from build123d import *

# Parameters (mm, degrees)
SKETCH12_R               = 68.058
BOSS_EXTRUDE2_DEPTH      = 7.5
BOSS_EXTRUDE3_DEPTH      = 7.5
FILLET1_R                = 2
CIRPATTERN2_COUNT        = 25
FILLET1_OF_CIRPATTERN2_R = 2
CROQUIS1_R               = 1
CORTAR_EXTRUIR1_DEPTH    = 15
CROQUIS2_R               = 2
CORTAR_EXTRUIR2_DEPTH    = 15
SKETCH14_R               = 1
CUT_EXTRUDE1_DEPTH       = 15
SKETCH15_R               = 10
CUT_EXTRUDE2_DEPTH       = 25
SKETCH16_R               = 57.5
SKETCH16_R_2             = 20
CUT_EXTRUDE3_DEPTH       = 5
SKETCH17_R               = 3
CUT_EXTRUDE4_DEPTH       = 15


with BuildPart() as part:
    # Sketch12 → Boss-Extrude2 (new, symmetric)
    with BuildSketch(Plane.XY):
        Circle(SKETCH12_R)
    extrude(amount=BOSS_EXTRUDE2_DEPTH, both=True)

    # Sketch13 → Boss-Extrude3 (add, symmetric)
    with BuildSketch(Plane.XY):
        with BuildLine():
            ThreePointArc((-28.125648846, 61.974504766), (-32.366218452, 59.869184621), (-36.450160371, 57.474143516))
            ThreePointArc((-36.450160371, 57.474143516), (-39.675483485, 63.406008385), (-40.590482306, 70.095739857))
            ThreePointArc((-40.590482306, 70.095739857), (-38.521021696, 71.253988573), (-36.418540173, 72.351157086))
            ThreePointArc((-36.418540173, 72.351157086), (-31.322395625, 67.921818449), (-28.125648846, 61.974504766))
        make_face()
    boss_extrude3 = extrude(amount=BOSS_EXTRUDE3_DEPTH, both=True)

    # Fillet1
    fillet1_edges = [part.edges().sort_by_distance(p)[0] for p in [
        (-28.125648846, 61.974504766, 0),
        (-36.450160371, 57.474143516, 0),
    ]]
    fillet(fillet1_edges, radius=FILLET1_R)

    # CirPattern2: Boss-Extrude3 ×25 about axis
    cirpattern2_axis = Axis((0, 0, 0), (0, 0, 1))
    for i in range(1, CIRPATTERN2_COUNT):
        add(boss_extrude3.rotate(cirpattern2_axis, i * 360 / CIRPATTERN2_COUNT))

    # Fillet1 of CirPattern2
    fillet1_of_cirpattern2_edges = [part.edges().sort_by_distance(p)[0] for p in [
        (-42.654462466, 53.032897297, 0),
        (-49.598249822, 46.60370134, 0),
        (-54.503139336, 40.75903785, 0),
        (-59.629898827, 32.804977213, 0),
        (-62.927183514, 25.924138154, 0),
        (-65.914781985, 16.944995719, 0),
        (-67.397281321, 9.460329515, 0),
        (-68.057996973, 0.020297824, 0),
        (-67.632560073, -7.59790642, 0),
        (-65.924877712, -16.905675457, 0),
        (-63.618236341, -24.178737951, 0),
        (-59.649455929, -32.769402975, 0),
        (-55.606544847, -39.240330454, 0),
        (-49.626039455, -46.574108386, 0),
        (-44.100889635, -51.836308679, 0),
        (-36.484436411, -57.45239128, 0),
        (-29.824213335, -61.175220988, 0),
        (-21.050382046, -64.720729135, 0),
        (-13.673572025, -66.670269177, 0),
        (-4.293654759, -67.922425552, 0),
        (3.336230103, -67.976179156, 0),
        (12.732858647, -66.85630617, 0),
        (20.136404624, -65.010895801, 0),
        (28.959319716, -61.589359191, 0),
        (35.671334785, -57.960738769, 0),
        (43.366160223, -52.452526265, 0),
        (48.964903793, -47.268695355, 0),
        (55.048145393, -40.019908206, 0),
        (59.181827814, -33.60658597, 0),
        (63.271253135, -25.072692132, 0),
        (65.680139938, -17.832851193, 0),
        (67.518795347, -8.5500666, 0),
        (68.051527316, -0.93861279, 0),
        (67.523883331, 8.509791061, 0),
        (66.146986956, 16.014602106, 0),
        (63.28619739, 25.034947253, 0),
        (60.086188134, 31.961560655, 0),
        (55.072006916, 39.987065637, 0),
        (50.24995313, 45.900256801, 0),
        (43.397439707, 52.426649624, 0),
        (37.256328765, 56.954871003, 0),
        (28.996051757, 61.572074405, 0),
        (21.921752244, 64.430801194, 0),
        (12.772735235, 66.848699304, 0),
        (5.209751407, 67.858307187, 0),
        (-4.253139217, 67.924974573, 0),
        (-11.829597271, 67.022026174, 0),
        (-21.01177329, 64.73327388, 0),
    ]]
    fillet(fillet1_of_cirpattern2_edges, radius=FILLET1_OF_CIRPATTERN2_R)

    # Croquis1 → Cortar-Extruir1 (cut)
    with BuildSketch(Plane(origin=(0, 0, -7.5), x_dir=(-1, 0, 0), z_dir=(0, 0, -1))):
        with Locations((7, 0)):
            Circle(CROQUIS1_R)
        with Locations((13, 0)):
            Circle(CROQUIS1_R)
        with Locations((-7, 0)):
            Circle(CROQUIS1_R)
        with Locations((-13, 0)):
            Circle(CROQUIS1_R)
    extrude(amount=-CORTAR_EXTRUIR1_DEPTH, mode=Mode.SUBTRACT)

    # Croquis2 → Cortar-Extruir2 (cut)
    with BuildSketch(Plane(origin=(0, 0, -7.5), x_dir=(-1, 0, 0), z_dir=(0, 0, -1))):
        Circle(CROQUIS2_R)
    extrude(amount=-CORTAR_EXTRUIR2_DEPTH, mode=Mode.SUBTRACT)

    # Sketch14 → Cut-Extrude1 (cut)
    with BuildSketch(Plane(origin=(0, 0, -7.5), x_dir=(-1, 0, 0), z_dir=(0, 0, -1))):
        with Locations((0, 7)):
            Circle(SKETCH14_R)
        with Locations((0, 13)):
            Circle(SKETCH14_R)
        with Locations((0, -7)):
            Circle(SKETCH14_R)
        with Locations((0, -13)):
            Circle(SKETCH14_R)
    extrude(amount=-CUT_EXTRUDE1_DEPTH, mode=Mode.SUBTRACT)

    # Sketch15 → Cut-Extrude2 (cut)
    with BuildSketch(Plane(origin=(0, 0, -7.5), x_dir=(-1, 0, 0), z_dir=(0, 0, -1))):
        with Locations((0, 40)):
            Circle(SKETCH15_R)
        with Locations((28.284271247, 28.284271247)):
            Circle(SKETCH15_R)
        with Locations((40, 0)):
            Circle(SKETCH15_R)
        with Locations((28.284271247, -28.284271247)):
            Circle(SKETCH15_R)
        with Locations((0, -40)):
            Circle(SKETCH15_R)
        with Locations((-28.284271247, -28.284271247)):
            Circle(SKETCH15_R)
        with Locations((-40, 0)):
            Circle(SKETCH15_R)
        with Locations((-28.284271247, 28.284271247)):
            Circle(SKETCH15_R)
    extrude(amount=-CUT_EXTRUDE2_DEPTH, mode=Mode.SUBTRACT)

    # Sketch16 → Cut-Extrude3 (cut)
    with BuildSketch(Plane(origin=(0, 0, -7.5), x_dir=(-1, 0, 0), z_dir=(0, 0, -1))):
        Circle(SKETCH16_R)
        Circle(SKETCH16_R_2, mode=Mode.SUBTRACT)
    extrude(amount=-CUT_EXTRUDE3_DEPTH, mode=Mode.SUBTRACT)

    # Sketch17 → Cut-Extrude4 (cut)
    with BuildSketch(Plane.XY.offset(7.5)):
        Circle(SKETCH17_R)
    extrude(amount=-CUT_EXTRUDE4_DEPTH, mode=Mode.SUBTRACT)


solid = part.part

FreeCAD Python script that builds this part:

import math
import FreeCAD as App
import Part
import Sketcher

V = App.Vector
Q = App.Units.Quantity


def edges_at(feature, points):
    """Names of the edges that pass closest to the given points."""
    edges = feature.Shape.Edges
    near = lambda p: min(range(len(edges)), key=lambda i: edges[i].distToShape(Part.Vertex(*p))[0])
    return sorted({f"Edge{near(p) + 1}" for p in points})

doc = App.newDocument("Part")
body = doc.addObject("PartDesign::Body", "Body")

sketch1 = body.newObject("Sketcher::SketchObject", "Sketch")
sketch1.AttachmentSupport = (doc.getObject("XY_Plane"), [""])
sketch1.MapMode = "FlatFace"
sketch1.addGeometry(Part.Circle(V(0, 0, 0), V(0, 0, 1), 68), False)
sketch1.addConstraint(Sketcher.Constraint("Coincident", 0, 3, -1, 1))
sketch1.addConstraint(Sketcher.Constraint("Diameter", 0, Q("136.116 mm")))
pad1 = body.newObject("PartDesign::Pad", "Pad")
pad1.Profile = sketch1
pad1.Length = 15
pad1.Midplane = True

sketch2 = body.newObject("Sketcher::SketchObject", "Sketch001")
sketch2.AttachmentSupport = (doc.getObject("XY_Plane"), [""])
sketch2.MapMode = "FlatFace"
sketch2.addGeometry(Part.ArcOfCircle(Part.Circle(V(0, 0, 0), V(0, 0, 1), 68.1), math.radians(114.41), math.radians(122.38)), False)
sketch2.addGeometry(Part.ArcOfCircle(Part.Circle(V(-46, 56.2, 0), V(0, 0, 1), 18.8), math.radians(18), math.radians(59)), False)
sketch2.addGeometry(Part.ArcOfCircle(Part.Circle(V(0, 0, 0), V(0, 0, 1), 81), math.radians(116.72), math.radians(120.07)), False)
sketch2.addGeometry(Part.ArcOfCircle(Part.Circle(V(-21.9, 69.3, 0), V(0, 0, 1), 18.8), math.radians(177), math.radians(219)), False)
sketch2.addConstraint(Sketcher.Constraint("Coincident", 0, 1, 1, 1))
sketch2.addConstraint(Sketcher.Constraint("Coincident", 1, 2, 2, 1))
sketch2.addConstraint(Sketcher.Constraint("Coincident", 2, 2, 3, 1))
sketch2.addConstraint(Sketcher.Constraint("Coincident", 3, 2, 0, 2))
sketch2.addConstraint(Sketcher.Constraint("Coincident", 0, 3, -1, 1))
sketch2.addConstraint(Sketcher.Constraint("Coincident", 2, 3, -1, 1))
sketch2.addConstraint(Sketcher.Constraint("Equal", 1, 3))
sketch2.addConstraint(Sketcher.Constraint("Radius", 2, Q("80.999999 mm")))
sketch2.addConstraint(Sketcher.Constraint("Radius", 1, Q("18.75 mm")))
sketch2.addConstraint(Sketcher.Constraint("Radius", 0, Q("68.058 mm")))
sketch2.addConstraint(Sketcher.Constraint("DistanceY", 1, 3, 3, 2, Q("1.2581 mm")))
sketch2.addConstraint(Sketcher.Constraint("DistanceX", 1, 3, -1, 1, Q("45.969489 mm")))
sketch2.addConstraint(Sketcher.Constraint("DistanceY", -1, 1, 3, 3, Q("69.250252 mm")))
sketch2.addConstraint(Sketcher.Constraint("DistanceX", 1, 2, -1, 1, Q("36.41854 mm")))
pad2 = body.newObject("PartDesign::Pad", "Pad001")
pad2.Profile = sketch2
pad2.Length = 15
pad2.Midplane = True
doc.recompute()

fillet = body.newObject("PartDesign::Fillet", "Fillet")
fillet.Base = (pad2, edges_at(pad2, [(-28.126, 61.975, 0), (-36.45, 57.474, 0)]))
fillet.Radius = 2
doc.recompute()

polarpattern = body.newObject("PartDesign::PolarPattern", "PolarPattern")
polarpattern.Originals = [pad2]
polarpattern.Axis = (doc.getObject("Z_Axis"), [""])
polarpattern.Angle = 360
polarpattern.Occurrences = 25
body.Tip = polarpattern
doc.recompute()

fillet2 = body.newObject("PartDesign::Fillet", "Fillet001")
fillet2.Base = (polarpattern, edges_at(polarpattern, [
    (-42.654, 53.033, 0),
    (-49.598, 46.604, 0),
    (-54.503, 40.759, 0),
    (-59.63, 32.805, 0),
    (-62.927, 25.924, 0),
    (-65.915, 16.945, 0),
    (-67.397, 9.46, 0),
    (-68.058, 0.02, 0),
    (-67.633, -7.598, 0),
    (-65.925, -16.906, 0),
    (-63.618, -24.179, 0),
    (-59.649, -32.769, 0),
    (-55.607, -39.24, 0),
    (-49.626, -46.574, 0),
    (-44.101, -51.836, 0),
    (-36.484, -57.452, 0),
    (-29.824, -61.175, 0),
    (-21.05, -64.721, 0),
    (-13.674, -66.67, 0),
    (-4.294, -67.922, 0),
    (3.336, -67.976, 0),
    (12.733, -66.856, 0),
    (20.136, -65.011, 0),
    (28.959, -61.589, 0),
    (35.671, -57.961, 0),
    (43.366, -52.453, 0),
    (48.965, -47.269, 0),
    (55.048, -40.02, 0),
    (59.182, -33.607, 0),
    (63.271, -25.073, 0),
    (65.68, -17.833, 0),
    (67.519, -8.55, 0),
    (68.052, -0.939, 0),
    (67.524, 8.51, 0),
    (66.147, 16.015, 0),
    (63.286, 25.035, 0),
    (60.086, 31.962, 0),
    (55.072, 39.987, 0),
    (50.25, 45.9, 0),
    (43.397, 52.427, 0),
    (37.256, 56.955, 0),
    (28.996, 61.572, 0),
    (21.922, 64.431, 0),
    (12.773, 66.849, 0),
    (5.21, 67.858, 0),
    (-4.253, 67.925, 0),
    (-11.83, 67.022, 0),
    (-21.012, 64.733, 0),
]))
fillet2.Radius = 2

sketch3 = body.newObject("Sketcher::SketchObject", "Sketch002")
sketch3.AttachmentSupport = (doc.getObject("XY_Plane"), [""])
sketch3.MapMode = "FlatFace"
sketch3.AttachmentOffset = App.Placement(V(0, 0, -7.5), App.Rotation())
sketch3.addGeometry(Part.Circle(V(-7, 0, 0), V(0, 0, 1), 1), False)
sketch3.addGeometry(Part.Circle(V(-13, 0, 0), V(0, 0, 1), 1), False)
sketch3.addGeometry(Part.Circle(V(7, 0, 0), V(0, 0, 1), 1), False)
sketch3.addGeometry(Part.Circle(V(13, 0, 0), V(0, 0, 1), 1), False)
sketch3.addConstraint(Sketcher.Constraint("Equal", 0, 1))
sketch3.addConstraint(Sketcher.Constraint("Equal", 1, 2))
sketch3.addConstraint(Sketcher.Constraint("Equal", 2, 3))
sketch3.addConstraint(Sketcher.Constraint("Symmetric", 0, 3, 2, 3, -1, 1))
sketch3.addConstraint(Sketcher.Constraint("Symmetric", 1, 3, 3, 3, -1, 1))
sketch3.addConstraint(Sketcher.Constraint("PointOnObject", 0, 3, -1))
sketch3.addConstraint(Sketcher.Constraint("PointOnObject", 1, 3, -1))
sketch3.addConstraint(Sketcher.Constraint("Diameter", 0, Q("2 mm")))
sketch3.addConstraint(Sketcher.Constraint("DistanceX", 0, 3, -1, 1, Q("7 mm")))
sketch3.addConstraint(Sketcher.Constraint("DistanceX", 1, 3, -1, 1, Q("13 mm")))
pocket1 = body.newObject("PartDesign::Pocket", "Pocket")
pocket1.Profile = sketch3
pocket1.Length = 15
pocket1.Reversed = True

sketch4 = body.newObject("Sketcher::SketchObject", "Sketch003")
sketch4.AttachmentSupport = (doc.getObject("XY_Plane"), [""])
sketch4.MapMode = "FlatFace"
sketch4.AttachmentOffset = App.Placement(V(0, 0, -7.5), App.Rotation())
sketch4.addGeometry(Part.Circle(V(0, 0, 0), V(0, 0, 1), 2), False)
sketch4.addConstraint(Sketcher.Constraint("Coincident", 0, 3, -1, 1))
sketch4.addConstraint(Sketcher.Constraint("Diameter", 0, Q("4 mm")))
pocket2 = body.newObject("PartDesign::Pocket", "Pocket001")
pocket2.Profile = sketch4
pocket2.Length = 15
pocket2.Reversed = True

sketch5 = body.newObject("Sketcher::SketchObject", "Sketch004")
sketch5.AttachmentSupport = (doc.getObject("XY_Plane"), [""])
sketch5.MapMode = "FlatFace"
sketch5.AttachmentOffset = App.Placement(V(0, 0, -7.5), App.Rotation())
sketch5.addGeometry(Part.Circle(V(0, 7, 0), V(0, 0, 1), 1), False)
sketch5.addGeometry(Part.Circle(V(0, 13, 0), V(0, 0, 1), 1), False)
sketch5.addGeometry(Part.Circle(V(0, -7, 0), V(0, 0, 1), 1), False)
sketch5.addGeometry(Part.Circle(V(0, -13, 0), V(0, 0, 1), 1), False)
sketch5.addConstraint(Sketcher.Constraint("Equal", 0, 1))
sketch5.addConstraint(Sketcher.Constraint("Equal", 1, 2))
sketch5.addConstraint(Sketcher.Constraint("Equal", 2, 3))
sketch5.addConstraint(Sketcher.Constraint("Symmetric", 0, 3, 2, 3, -1, 1))
sketch5.addConstraint(Sketcher.Constraint("Symmetric", 1, 3, 3, 3, -1, 1))
sketch5.addConstraint(Sketcher.Constraint("PointOnObject", 0, 3, -2))
sketch5.addConstraint(Sketcher.Constraint("PointOnObject", 1, 3, -2))
sketch5.addConstraint(Sketcher.Constraint("Diameter", 0, Q("2 mm")))
sketch5.addConstraint(Sketcher.Constraint("DistanceY", -1, 1, 0, 3, Q("7 mm")))
sketch5.addConstraint(Sketcher.Constraint("DistanceY", -1, 1, 1, 3, Q("13 mm")))
pocket3 = body.newObject("PartDesign::Pocket", "Pocket002")
pocket3.Profile = sketch5
pocket3.Length = 15
pocket3.Reversed = True

sketch6 = body.newObject("Sketcher::SketchObject", "Sketch005")
sketch6.AttachmentSupport = (doc.getObject("XY_Plane"), [""])
sketch6.MapMode = "FlatFace"
sketch6.AttachmentOffset = App.Placement(V(0, 0, -7.5), App.Rotation())
sketch6.addGeometry(Part.Circle(V(0, 40, 0), V(0, 0, 1), 10), False)
sketch6.addGeometry(Part.Circle(V(-28, 28, 0), V(0, 0, 1), 10), False)
sketch6.addGeometry(Part.Circle(V(-40, 0, 0), V(0, 0, 1), 10), False)
sketch6.addGeometry(Part.Circle(V(-28, -28, 0), V(0, 0, 1), 10), False)
sketch6.addGeometry(Part.Circle(V(0, -40, 0), V(0, 0, 1), 10), False)
sketch6.addGeometry(Part.Circle(V(28, -28, 0), V(0, 0, 1), 10), False)
sketch6.addGeometry(Part.Circle(V(40, 0, 0), V(0, 0, 1), 10), False)
sketch6.addGeometry(Part.Circle(V(28, 28, 0), V(0, 0, 1), 10), False)
sketch6.addConstraint(Sketcher.Constraint("Equal", 0, 1))
sketch6.addConstraint(Sketcher.Constraint("Equal", 1, 2))
sketch6.addConstraint(Sketcher.Constraint("Equal", 2, 3))
sketch6.addConstraint(Sketcher.Constraint("Equal", 3, 4))
sketch6.addConstraint(Sketcher.Constraint("Equal", 4, 5))
sketch6.addConstraint(Sketcher.Constraint("Equal", 5, 6))
sketch6.addConstraint(Sketcher.Constraint("Equal", 6, 7))
sketch6.addConstraint(Sketcher.Constraint("Symmetric", 0, 3, 4, 3, -1, 1))
sketch6.addConstraint(Sketcher.Constraint("Symmetric", 1, 3, 5, 3, -1, 1))
sketch6.addConstraint(Sketcher.Constraint("Symmetric", 2, 3, 6, 3, -1, 1))
sketch6.addConstraint(Sketcher.Constraint("Symmetric", 3, 3, 7, 3, -1, 1))
sketch6.addConstraint(Sketcher.Constraint("Symmetric", 3, 3, 5, 3, -2))
sketch6.addConstraint(Sketcher.Constraint("PointOnObject", 0, 3, -2))
sketch6.addConstraint(Sketcher.Constraint("PointOnObject", 2, 3, -1))
sketch6.addConstraint(Sketcher.Constraint("Diameter", 0, Q("20 mm")))
sketch6.addConstraint(Sketcher.Constraint("DistanceY", -1, 1, 0, 3, Q("40 mm")))
sketch6.addConstraint(Sketcher.Constraint("DistanceX", 2, 3, -1, 1, Q("40 mm")))
sketch6.addConstraint(Sketcher.Constraint("DistanceX", 1, 3, -1, 1, Q("28.284271 mm")))
sketch6.addConstraint(Sketcher.Constraint("DistanceY", -1, 1, 1, 3, Q("28.284271 mm")))
pocket4 = body.newObject("PartDesign::Pocket", "Pocket003")
pocket4.Profile = sketch6
pocket4.Length = 25
pocket4.Reversed = True

sketch7 = body.newObject("Sketcher::SketchObject", "Sketch006")
sketch7.AttachmentSupport = (doc.getObject("XY_Plane"), [""])
sketch7.MapMode = "FlatFace"
sketch7.AttachmentOffset = App.Placement(V(0, 0, -7.5), App.Rotation())
sketch7.addGeometry(Part.Circle(V(0, 0, 0), V(0, 0, 1), 58), False)
sketch7.addGeometry(Part.Circle(V(0, 0, 0), V(0, 0, 1), 20), False)
sketch7.addConstraint(Sketcher.Constraint("Coincident", 0, 3, -1, 1))
sketch7.addConstraint(Sketcher.Constraint("Coincident", 1, 3, -1, 1))
sketch7.addConstraint(Sketcher.Constraint("Diameter", 0, Q("115 mm")))
sketch7.addConstraint(Sketcher.Constraint("Diameter", 1, Q("40 mm")))
pocket5 = body.newObject("PartDesign::Pocket", "Pocket004")
pocket5.Profile = sketch7
pocket5.Length = 5
pocket5.Reversed = True

sketch8 = body.newObject("Sketcher::SketchObject", "Sketch007")
sketch8.AttachmentSupport = (doc.getObject("XY_Plane"), [""])
sketch8.MapMode = "FlatFace"
sketch8.AttachmentOffset = App.Placement(V(0, 0, 7.5), App.Rotation())
sketch8.addGeometry(Part.Circle(V(0, 0, 0), V(0, 0, 1), 3), False)
sketch8.addConstraint(Sketcher.Constraint("Coincident", 0, 3, -1, 1))
sketch8.addConstraint(Sketcher.Constraint("Diameter", 0, Q("6 mm")))
pocket6 = body.newObject("PartDesign::Pocket", "Pocket005")
pocket6.Profile = sketch8
pocket6.Length = 15

doc.recompute()
